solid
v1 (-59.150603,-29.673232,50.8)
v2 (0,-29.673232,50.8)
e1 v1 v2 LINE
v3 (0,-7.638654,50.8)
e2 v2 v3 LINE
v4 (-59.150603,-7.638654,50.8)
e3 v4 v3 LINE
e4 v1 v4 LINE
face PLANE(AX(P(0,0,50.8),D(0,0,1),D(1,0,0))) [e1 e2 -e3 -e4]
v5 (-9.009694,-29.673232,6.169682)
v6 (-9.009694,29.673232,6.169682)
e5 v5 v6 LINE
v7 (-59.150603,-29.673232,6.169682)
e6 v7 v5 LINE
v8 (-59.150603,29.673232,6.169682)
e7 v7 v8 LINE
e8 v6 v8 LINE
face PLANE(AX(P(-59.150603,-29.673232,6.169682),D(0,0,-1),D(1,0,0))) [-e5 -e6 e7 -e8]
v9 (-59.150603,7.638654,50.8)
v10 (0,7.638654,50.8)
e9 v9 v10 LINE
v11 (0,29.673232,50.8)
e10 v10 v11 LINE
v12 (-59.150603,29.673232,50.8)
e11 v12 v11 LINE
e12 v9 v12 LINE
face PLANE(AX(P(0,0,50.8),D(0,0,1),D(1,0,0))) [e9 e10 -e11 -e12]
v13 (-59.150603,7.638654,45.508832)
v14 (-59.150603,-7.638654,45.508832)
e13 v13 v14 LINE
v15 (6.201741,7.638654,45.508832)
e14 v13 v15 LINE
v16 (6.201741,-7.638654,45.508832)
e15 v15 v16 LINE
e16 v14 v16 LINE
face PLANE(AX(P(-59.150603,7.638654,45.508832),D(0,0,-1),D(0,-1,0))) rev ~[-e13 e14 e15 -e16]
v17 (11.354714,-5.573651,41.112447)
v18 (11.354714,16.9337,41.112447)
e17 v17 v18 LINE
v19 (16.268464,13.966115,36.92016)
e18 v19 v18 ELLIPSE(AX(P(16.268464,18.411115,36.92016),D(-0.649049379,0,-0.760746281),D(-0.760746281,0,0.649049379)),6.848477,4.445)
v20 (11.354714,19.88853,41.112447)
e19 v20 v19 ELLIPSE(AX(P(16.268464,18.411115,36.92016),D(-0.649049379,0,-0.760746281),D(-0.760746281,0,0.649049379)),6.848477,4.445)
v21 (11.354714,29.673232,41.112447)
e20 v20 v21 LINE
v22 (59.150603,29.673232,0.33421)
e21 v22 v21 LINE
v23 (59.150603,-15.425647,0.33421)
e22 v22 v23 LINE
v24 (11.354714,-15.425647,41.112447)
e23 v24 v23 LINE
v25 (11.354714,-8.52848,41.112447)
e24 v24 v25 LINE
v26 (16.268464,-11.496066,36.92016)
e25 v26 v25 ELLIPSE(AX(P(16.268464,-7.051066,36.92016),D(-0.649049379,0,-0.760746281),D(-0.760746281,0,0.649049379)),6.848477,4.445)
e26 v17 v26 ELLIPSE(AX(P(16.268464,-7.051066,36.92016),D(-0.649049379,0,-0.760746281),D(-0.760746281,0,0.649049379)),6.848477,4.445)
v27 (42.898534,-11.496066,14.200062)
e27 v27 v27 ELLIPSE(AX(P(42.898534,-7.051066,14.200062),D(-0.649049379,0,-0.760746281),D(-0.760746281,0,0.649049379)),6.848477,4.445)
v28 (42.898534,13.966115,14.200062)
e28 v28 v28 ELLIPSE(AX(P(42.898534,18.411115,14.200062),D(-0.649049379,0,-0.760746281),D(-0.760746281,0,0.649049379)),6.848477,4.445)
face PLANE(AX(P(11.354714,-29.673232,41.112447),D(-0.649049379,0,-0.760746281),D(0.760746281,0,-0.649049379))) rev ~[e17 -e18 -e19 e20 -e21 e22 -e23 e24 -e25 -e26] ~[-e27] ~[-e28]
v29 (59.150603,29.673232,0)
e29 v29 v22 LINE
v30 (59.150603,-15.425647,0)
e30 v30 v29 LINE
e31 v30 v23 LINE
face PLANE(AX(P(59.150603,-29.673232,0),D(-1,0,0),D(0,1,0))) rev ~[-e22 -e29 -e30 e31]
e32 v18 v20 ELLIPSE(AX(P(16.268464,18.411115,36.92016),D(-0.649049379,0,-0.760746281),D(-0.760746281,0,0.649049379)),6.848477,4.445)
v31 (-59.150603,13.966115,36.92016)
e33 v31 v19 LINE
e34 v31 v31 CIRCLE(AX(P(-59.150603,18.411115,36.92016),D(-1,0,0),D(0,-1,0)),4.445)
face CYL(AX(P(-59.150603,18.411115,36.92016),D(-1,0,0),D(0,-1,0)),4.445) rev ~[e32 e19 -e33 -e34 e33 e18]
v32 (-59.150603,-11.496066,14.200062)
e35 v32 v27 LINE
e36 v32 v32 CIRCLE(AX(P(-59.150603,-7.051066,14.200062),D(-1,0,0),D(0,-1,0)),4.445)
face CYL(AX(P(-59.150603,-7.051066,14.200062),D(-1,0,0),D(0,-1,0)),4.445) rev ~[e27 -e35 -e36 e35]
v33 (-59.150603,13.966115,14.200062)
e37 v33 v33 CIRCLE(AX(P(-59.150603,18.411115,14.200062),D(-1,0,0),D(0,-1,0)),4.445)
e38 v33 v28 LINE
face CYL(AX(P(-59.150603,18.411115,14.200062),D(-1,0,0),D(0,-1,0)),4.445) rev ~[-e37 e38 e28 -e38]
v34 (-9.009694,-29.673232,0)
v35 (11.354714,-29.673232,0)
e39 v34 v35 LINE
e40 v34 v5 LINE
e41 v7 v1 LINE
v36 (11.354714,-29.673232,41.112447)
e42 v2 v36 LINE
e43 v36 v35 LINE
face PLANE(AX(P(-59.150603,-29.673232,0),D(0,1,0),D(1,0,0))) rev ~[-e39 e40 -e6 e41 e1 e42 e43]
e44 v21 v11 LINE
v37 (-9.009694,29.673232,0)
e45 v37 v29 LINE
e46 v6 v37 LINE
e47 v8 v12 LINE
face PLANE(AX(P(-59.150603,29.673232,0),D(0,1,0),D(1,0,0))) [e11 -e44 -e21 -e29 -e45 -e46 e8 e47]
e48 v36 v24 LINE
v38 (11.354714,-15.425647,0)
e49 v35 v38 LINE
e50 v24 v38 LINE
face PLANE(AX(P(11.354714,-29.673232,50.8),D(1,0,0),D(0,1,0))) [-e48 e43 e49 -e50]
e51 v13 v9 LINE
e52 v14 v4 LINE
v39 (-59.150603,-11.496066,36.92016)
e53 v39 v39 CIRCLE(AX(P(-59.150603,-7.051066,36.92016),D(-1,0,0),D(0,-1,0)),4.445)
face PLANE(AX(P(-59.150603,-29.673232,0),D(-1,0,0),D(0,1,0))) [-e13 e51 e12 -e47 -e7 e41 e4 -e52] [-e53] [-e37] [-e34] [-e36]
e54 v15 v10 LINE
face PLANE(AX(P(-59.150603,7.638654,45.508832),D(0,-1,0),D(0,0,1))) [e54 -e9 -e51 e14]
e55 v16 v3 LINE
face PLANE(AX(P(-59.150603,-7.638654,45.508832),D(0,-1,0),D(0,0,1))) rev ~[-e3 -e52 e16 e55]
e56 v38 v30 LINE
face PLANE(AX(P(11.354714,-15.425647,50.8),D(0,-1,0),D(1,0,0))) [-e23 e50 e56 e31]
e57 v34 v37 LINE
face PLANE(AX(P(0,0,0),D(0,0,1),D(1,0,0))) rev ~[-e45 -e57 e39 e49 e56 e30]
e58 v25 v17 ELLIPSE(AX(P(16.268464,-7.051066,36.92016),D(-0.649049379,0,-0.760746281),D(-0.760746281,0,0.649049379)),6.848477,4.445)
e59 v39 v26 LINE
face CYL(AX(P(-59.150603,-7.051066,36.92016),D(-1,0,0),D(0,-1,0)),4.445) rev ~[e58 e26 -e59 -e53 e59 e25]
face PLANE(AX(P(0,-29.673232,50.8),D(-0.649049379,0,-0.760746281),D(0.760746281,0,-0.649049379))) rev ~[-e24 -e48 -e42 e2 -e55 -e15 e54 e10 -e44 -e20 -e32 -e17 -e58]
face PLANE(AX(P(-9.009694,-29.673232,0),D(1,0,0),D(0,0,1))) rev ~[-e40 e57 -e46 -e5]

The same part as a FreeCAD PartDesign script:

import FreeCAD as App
import Part
import Sketcher

V = App.Vector
Q = App.Units.Quantity


def add_polygon(sketch, points):
    """Adds a closed chain of lines whose ends are joined by coincident constraints."""
    first, n = sketch.GeometryCount, len(points)
    for a, b in zip(points, points[1:] + points[:1]):
        sketch.addGeometry(Part.LineSegment(App.Vector(*a, 0), App.Vector(*b, 0)), False)
    for i in range(n):
        sketch.addConstraint(Sketcher.Constraint("Coincident", first + i, 2, first + (i + 1) % n, 1))

doc = App.newDocument("Part")
body = doc.addObject("PartDesign::Body", "Body")

# Sketch on XY plane
sketch1 = body.newObject("Sketcher::SketchObject", "Sketch")
sketch1.AttachmentSupport = (doc.getObject("XY_Plane"), [""])
sketch1.MapMode = "FlatFace"
add_polygon(sketch1, [(-59, 30), (-59, -30), (59, -30), (59, 30)])  # lines 0-3
sketch1.addConstraint(Sketcher.Constraint("Vertical", 0))
sketch1.addConstraint(Sketcher.Constraint("Horizontal", 1))
sketch1.addConstraint(Sketcher.Constraint("Vertical", 2))
sketch1.addConstraint(Sketcher.Constraint("Horizontal", 3))
sketch1.addConstraint(Sketcher.Constraint("Symmetric", 0, 2, 2, 2, -1, 1))
sketch1.addConstraint(Sketcher.Constraint("DistanceX", 1, 1, 1, 2, Q("118.301205 mm")))
sketch1.addConstraint(Sketcher.Constraint("DistanceY", 0, 2, 0, 1, Q("59.346464 mm")))
pad1 = body.newObject("PartDesign::Pad", "Pad")
pad1.Profile = sketch1
pad1.Length = Q("2 in")

# Sketch on XY plane
sketch2 = body.newObject("Sketcher::SketchObject", "Sketch001")
sketch2.AttachmentSupport = (doc.getObject("XY_Plane"), [""])
sketch2.MapMode = "FlatFace"
sketch2.AttachmentOffset = App.Placement(V(0, 0, 2 * 25.4), App.Rotation())
add_polygon(sketch2, [(11, -15), (11, -30), (64, -30), (64, -15)])  # lines 0-3
sketch2.addConstraint(Sketcher.Constraint("Vertical", 0))
sketch2.addConstraint(Sketcher.Constraint("Horizontal", 1))
sketch2.addConstraint(Sketcher.Constraint("Vertical", 2))
sketch2.addConstraint(Sketcher.Constraint("Horizontal", 3))
sketch2.addConstraint(Sketcher.Constraint("DistanceX", 1, 1, 1, 2, Q("52.496591 mm")))
sketch2.addConstraint(Sketcher.Constraint("DistanceY", 0, 2, 0, 1, Q("14.247585 mm")))
sketch2.addConstraint(Sketcher.Constraint("DistanceY", 0, 2, -1, 1, Q("29.673232 mm")))
sketch2.addConstraint(Sketcher.Constraint("DistanceX", -1, 1, 0, 2, Q("11.354714 mm")))
pocket1 = body.newObject("PartDesign::Pocket", "Pocket")
pocket1.Profile = sketch2
pocket1.Length = Q("4.41 in")

# Sketch on XZ plane
sketch3 = body.newObject("Sketcher::SketchObject", "Sketch002")
sketch3.AttachmentSupport = (doc.getObject("XZ_Plane"), [""])
sketch3.MapMode = "FlatFace"
sketch3.AttachmentOffset = App.Placement(V(0, 0, 29.673232), App.Rotation())
add_polygon(sketch3, [(-59, 6), (-59, 0), (-9, 0), (-9, 6)])  # lines 0-3
sketch3.addConstraint(Sketcher.Constraint("Vertical", 0))
sketch3.addConstraint(Sketcher.Constraint("Horizontal", 1))
sketch3.addConstraint(Sketcher.Constraint("Vertical", 2))
sketch3.addConstraint(Sketcher.Constraint("Horizontal", 3))
sketch3.addConstraint(Sketcher.Constraint("PointOnObject", 0, 2, -1))
sketch3.addConstraint(Sketcher.Constraint("DistanceX", 1, 1, 1, 2, Q("50.140909 mm")))
sketch3.addConstraint(Sketcher.Constraint("DistanceY", 0, 2, 0, 1, Q("6.169682 mm")))
sketch3.addConstraint(Sketcher.Constraint("DistanceX", 0, 2, -1, 1, Q("59.150603 mm")))
pocket2 = body.newObject("PartDesign::Pocket", "Pocket001")
pocket2.Profile = sketch3
pocket2.Length = Q("4.85 in")

# Sketch on XZ plane
sketch4 = body.newObject("Sketcher::SketchObject", "Sketch003")
sketch4.AttachmentSupport = (doc.getObject("XZ_Plane"), [""])
sketch4.MapMode = "FlatFace"
sketch4.AttachmentOffset = App.Placement(V(0, 0, 29.673232), App.Rotation())
add_polygon(sketch4, [(0, 51), (11, 41), (60, 0), (60, 51)])  # lines 0-3
sketch4.addConstraint(Sketcher.Constraint("Vertical", 2))
sketch4.addConstraint(Sketcher.Constraint("Horizontal", 3))
sketch4.addConstraint(Sketcher.Constraint("PointOnObject", 1, 2, -1))
sketch4.addConstraint(Sketcher.Constraint("PointOnObject", 3, 2, -2))
sketch4.addConstraint(Sketcher.Constraint("Parallel", 0, 1))
sketch4.addConstraint(Sketcher.Constraint("DistanceY", 2, 1, 2, 2, Q("2 in")))
sketch4.addConstraint(Sketcher.Constraint("DistanceX", 3, 2, 3, 1, Q("59.542328 mm")))
sketch4.addConstraint(Sketcher.Constraint("Distance", 0, Q("14.925756 mm")))
pocket3 = body.newObject("PartDesign::Pocket", "Pocket002")
pocket3.Profile = sketch4
pocket3.Length = Q("3.8 in")

# Sketch on YZ plane
sketch5 = body.newObject("Sketcher::SketchObject", "Sketch004")
sketch5.AttachmentSupport = (doc.getObject("YZ_Plane"), [""])
sketch5.MapMode = "FlatFace"
sketch5.AttachmentOffset = App.Placement(V(0, 0, -59.150603), App.Rotation())
add_polygon(sketch5, [(8, 51), (8, 46), (-8, 46), (-8, 51)])  # lines 0-3
sketch5.addConstraint(Sketcher.Constraint("Vertical", 0))
sketch5.addConstraint(Sketcher.Constraint("Horizontal", 1))
sketch5.addConstraint(Sketcher.Constraint("Vertical", 2))
sketch5.addConstraint(Sketcher.Constraint("Horizontal", 3))
sketch5.addConstraint(Sketcher.Constraint("DistanceY", -1, 1, 2, 2, Q("2 in")))
sketch5.addConstraint(Sketcher.Constraint("DistanceX", 1, 2, 1, 1, Q("15.277307 mm")))
sketch5.addConstraint(Sketcher.Constraint("DistanceY", 0, 2, 0, 1, Q("5.291168 mm")))
sketch5.addConstraint(Sketcher.Constraint("DistanceX", -1, 1, 0, 2, Q("7.638654 mm")))
pocket4 = body.newObject("PartDesign::Pocket", "Pocket003")
pocket4.Profile = sketch5
pocket4.Length = Q("8.03 in")
pocket4.Reversed = True

# Sketch on YZ plane
sketch6 = body.newObject("Sketcher::SketchObject", "Sketch005")
sketch6.AttachmentSupport = (doc.getObject("YZ_Plane"), [""])
sketch6.MapMode = "FlatFace"
sketch6.AttachmentOffset = App.Placement(V(0, 0, -59.150603), App.Rotation())
sketch6.addGeometry(Part.Circle(V(18.4, 36.9, 0), V(0, 0, 1), 4.4), False)
sketch6.addGeometry(Part.Circle(V(-7.1, 36.9, 0), V(0, 0, 1), 4.4), False)
sketch6.addGeometry(Part.Circle(V(-7.1, 14.2, 0), V(0, 0, 1), 4.4), False)
sketch6.addGeometry(Part.Circle(V(18.4, 14.2, 0), V(0, 0, 1), 4.4), False)
sketch6.addConstraint(Sketcher.Constraint("Equal", 0, 1))
sketch6.addConstraint(Sketcher.Constraint("Equal", 1, 2))
sketch6.addConstraint(Sketcher.Constraint("Equal", 2, 3))
sketch6.addConstraint(Sketcher.Constraint("Horizontal", 0, 3, 1, 3))
sketch6.addConstraint(Sketcher.Constraint("Horizontal", 2, 3, 3, 3))
sketch6.addConstraint(Sketcher.Constraint("Vertical", 1, 3, 2, 3))
sketch6.addConstraint(Sketcher.Constraint("Vertical", 0, 3, 3, 3))
sketch6.addConstraint(Sketcher.Constraint("Diameter", 0, Q("0.35 in")))
sketch6.addConstraint(Sketcher.Constraint("DistanceY", 2, 3, 1, 3, Q("22.720098 mm")))
sketch6.addConstraint(Sketcher.Constraint("DistanceY", -1, 1, 0, 3, Q("36.92016 mm")))
sketch6.addConstraint(Sketcher.Constraint("DistanceX", 1, 3, 0, 3, Q("25.46218 mm")))
sketch6.addConstraint(Sketcher.Constraint("DistanceX", -1, 1, 0, 3, Q("18.411115 mm")))
pocket5 = body.newObject("PartDesign::Pocket", "Pocket004")
pocket5.Profile = sketch6
pocket5.Length = Q("8.29 in")
pocket5.Reversed = True

doc.recompute()
